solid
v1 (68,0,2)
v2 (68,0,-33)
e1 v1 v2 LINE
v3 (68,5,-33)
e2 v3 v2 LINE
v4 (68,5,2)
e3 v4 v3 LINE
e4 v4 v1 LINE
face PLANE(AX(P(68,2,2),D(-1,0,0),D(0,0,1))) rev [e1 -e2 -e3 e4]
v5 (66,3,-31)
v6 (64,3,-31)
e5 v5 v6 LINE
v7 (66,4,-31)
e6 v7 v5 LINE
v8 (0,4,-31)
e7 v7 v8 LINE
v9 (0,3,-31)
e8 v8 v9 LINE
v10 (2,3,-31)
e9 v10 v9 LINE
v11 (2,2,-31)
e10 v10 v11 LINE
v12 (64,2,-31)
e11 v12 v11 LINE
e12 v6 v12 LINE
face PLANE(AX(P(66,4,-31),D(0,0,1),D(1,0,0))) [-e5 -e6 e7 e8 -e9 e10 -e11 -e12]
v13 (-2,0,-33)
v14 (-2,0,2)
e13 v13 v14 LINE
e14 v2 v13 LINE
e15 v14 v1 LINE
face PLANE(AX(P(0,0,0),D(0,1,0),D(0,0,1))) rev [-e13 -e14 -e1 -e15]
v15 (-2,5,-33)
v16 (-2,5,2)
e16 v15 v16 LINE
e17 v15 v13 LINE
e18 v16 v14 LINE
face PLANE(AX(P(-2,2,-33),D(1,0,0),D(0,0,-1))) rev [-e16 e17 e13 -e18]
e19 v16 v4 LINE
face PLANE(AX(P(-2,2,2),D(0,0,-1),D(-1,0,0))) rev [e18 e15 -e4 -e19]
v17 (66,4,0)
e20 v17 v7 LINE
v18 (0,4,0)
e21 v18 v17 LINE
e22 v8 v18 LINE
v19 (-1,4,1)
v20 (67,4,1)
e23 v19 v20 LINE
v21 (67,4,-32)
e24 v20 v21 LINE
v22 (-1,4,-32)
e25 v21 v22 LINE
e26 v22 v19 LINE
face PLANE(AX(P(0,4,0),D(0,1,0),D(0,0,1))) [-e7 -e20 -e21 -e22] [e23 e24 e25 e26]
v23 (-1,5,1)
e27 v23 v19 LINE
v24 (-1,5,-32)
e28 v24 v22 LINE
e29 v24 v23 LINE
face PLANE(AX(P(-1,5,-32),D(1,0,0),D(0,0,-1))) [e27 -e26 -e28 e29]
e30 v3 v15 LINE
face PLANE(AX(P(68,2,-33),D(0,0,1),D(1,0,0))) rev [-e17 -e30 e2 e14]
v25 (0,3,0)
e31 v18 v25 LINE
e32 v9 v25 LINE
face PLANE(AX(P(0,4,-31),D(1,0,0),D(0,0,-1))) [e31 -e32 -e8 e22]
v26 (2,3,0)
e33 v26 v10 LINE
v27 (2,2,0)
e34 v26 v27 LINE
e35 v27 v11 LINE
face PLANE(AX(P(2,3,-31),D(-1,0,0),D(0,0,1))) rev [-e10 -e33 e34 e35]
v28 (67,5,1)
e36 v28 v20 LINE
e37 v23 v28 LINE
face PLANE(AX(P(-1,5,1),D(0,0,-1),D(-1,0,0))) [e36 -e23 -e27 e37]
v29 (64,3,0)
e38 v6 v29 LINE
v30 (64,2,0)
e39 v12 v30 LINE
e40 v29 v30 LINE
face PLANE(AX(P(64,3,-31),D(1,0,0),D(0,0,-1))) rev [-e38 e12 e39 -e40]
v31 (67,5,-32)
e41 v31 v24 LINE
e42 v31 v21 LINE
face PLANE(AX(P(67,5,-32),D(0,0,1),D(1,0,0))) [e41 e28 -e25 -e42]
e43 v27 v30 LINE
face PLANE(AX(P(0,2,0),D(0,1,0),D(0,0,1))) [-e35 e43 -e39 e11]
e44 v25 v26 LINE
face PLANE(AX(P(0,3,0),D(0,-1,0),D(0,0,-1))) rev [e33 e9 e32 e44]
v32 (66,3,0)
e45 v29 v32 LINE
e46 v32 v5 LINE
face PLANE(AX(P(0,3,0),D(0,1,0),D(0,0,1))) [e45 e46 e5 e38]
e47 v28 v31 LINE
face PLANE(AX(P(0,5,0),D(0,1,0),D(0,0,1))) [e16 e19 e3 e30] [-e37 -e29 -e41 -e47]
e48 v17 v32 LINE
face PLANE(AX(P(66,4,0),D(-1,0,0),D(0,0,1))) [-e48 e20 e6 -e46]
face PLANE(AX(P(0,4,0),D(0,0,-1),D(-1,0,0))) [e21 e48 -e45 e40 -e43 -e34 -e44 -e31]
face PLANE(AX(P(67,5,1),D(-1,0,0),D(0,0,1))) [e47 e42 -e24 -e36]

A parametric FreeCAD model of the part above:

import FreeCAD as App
import Part
import Sketcher
from FreeCAD import Vector
Q = App.Units.Quantity


def add_polygon(sketch, points):
    """Adds a closed chain of lines whose ends are joined by coincident constraints."""
    first, n = sketch.GeometryCount, len(points)
    for a, b in zip(points, points[1:] + points[:1]):
        sketch.addGeometry(Part.LineSegment(App.Vector(*a, 0), App.Vector(*b, 0)), False)
    for i in range(n):
        sketch.addConstraint(Sketcher.Constraint("Coincident", first + i, 2, first + (i + 1) % n, 1))

doc = App.newDocument("Part")
body = doc.addObject("PartDesign::Body", "Body")

sketch1 = body.newObject("Sketcher::SketchObject", "Sketch")
sketch1.AttachmentSupport = (doc.getObject("XZ_Plane"), [""])
sketch1.MapMode = "FlatFace"
add_polygon(sketch1, [(-2, -33), (-2, 2), (68, 2), (68, -33)])
sketch1.addConstraint([
    Sketcher.Constraint("Vertical", 0),
    Sketcher.Constraint("Horizontal", 1),
    Sketcher.Constraint("Vertical", 2),
    Sketcher.Constraint("Horizontal", 3),
    Sketcher.Constraint("DistanceX", 1, 1, 1, 2, Q("70 mm")),
    Sketcher.Constraint("DistanceY", 0, 1, 0, 2, Q("35 mm")),
    Sketcher.Constraint("DistanceX", 0, 2, -1, 1, Q("2 mm")),
    Sketcher.Constraint("DistanceY", -1, 1, 0, 2, Q("2 mm")),
])
pad1 = body.newObject("PartDesign::Pad", "Pad")
pad1.Profile = sketch1
pad1.Length = 2
pad1.Reversed = True

sketch2 = body.newObject("Sketcher::SketchObject", "Sketch001")
sketch2.AttachmentSupport = (doc.getObject("XZ_Plane"), [""])
sketch2.MapMode = "FlatFace"
sketch2.AttachmentOffset = App.Placement(Vector(0, 0, -2), App.Rotation())
add_polygon(sketch2, [(-2, -33), (-2, 2), (68, 2), (68, -33)])
add_polygon(sketch2, [(66, 0), (0, 0), (0, -31), (66, -31)])
sketch2.addConstraint([
    Sketcher.Constraint("Vertical", 0),
    Sketcher.Constraint("Horizontal", 1),
    Sketcher.Constraint("Vertical", 2),
    Sketcher.Constraint("Horizontal", 3),
    Sketcher.Constraint("Horizontal", 4),
    Sketcher.Constraint("Vertical", 5),
    Sketcher.Constraint("Horizontal", 6),
    Sketcher.Constraint("Vertical", 7),
    Sketcher.Constraint("Coincident", 4, 2, -1, 1),
    Sketcher.Constraint("DistanceX", 1, 1, 1, 2, Q("70 mm")),
    Sketcher.Constraint("DistanceX", 4, 2, 4, 1, Q("66 mm")),
    Sketcher.Constraint("DistanceY", 0, 1, 0, 2, Q("35 mm")),
    Sketcher.Constraint("DistanceY", 5, 2, 5, 1, Q("31 mm")),
    Sketcher.Constraint("DistanceX", 0, 2, -1, 1, Q("2 mm")),
    Sketcher.Constraint("DistanceY", -1, 1, 0, 2, Q("2 mm")),
])
pad2 = body.newObject("PartDesign::Pad", "Pad001")
pad2.Profile = sketch2
pad2.Length = 2
pad2.Reversed = True

sketch3 = body.newObject("Sketcher::SketchObject", "Sketch002")
sketch3.AttachmentSupport = (doc.getObject("XZ_Plane"), [""])
sketch3.MapMode = "FlatFace"
sketch3.AttachmentOffset = App.Placement(Vector(0, 0, -2), App.Rotation())
add_polygon(sketch3, [(0, -31), (0, 0), (2, 0), (2, -31)])
add_polygon(sketch3, [(64, -31), (64, 0), (66, 0), (66, -31)])
sketch3.addConstraint([
    Sketcher.Constraint("Vertical", 0),
    Sketcher.Constraint("Horizontal", 1),
    Sketcher.Constraint("Vertical", 2),
    Sketcher.Constraint("Horizontal", 3),
    Sketcher.Constraint("Vertical", 4),
    Sketcher.Constraint("Horizontal", 5),
    Sketcher.Constraint("Vertical", 6),
    Sketcher.Constraint("Horizontal", 7),
    Sketcher.Constraint("Coincident", 0, 2, -1, 1),
    Sketcher.Constraint("PointOnObject", 4, 2, -1),
    Sketcher.Constraint("Horizontal", 3, 2, 6, 2),
    Sketcher.Constraint("Equal", 3, 5),
    Sketcher.Constraint("DistanceX", 1, 1, 1, 2, Q("2 mm")),
    Sketcher.Constraint("DistanceY", 0, 1, 0, 2, Q("31 mm")),
    Sketcher.Constraint("DistanceX", -1, 1, 4, 2, Q("64 mm")),
])
pad3 = body.newObject("PartDesign::Pad", "Pad002")
pad3.Profile = sketch3
pad3.Length = 1
pad3.Reversed = True

sketch4 = body.newObject("Sketcher::SketchObject", "Sketch003")
sketch4.AttachmentSupport = (doc.getObject("XZ_Plane"), [""])
sketch4.MapMode = "FlatFace"
sketch4.AttachmentOffset = App.Placement(Vector(0, 0, -4), App.Rotation())
add_polygon(sketch4, [(-2, -33), (-2, 2), (68, 2), (68, -33)])
add_polygon(sketch4, [(67, 1), (-1, 1), (-1, -32), (67, -32)])
sketch4.addConstraint([
    Sketcher.Constraint("Vertical", 0),
    Sketcher.Constraint("Horizontal", 1),
    Sketcher.Constraint("Vertical", 2),
    Sketcher.Constraint("Horizontal", 3),
    Sketcher.Constraint("Horizontal", 4),
    Sketcher.Constraint("Vertical", 5),
    Sketcher.Constraint("Horizontal", 6),
    Sketcher.Constraint("Vertical", 7),
    Sketcher.Constraint("DistanceX", 1, 1, 1, 2, Q("70 mm")),
    Sketcher.Constraint("DistanceX", 4, 2, 4, 1, Q("68 mm")),
    Sketcher.Constraint("DistanceY", 0, 1, 0, 2, Q("35 mm")),
    Sketcher.Constraint("DistanceY", 5, 2, 5, 1, Q("33 mm")),
    Sketcher.Constraint("DistanceX", 0, 2, -1, 1, Q("2 mm")),
    Sketcher.Constraint("DistanceY", -1, 1, 0, 2, Q("2 mm")),
    Sketcher.Constraint("DistanceX", 4, 2, -1, 1, Q("1 mm")),
    Sketcher.Constraint("DistanceY", -1, 1, 4, 2, Q("1 mm")),
])
pad4 = body.newObject("PartDesign::Pad", "Pad003")
pad4.Profile = sketch4
pad4.Length = 1
pad4.Reversed = True

doc.recompute()
